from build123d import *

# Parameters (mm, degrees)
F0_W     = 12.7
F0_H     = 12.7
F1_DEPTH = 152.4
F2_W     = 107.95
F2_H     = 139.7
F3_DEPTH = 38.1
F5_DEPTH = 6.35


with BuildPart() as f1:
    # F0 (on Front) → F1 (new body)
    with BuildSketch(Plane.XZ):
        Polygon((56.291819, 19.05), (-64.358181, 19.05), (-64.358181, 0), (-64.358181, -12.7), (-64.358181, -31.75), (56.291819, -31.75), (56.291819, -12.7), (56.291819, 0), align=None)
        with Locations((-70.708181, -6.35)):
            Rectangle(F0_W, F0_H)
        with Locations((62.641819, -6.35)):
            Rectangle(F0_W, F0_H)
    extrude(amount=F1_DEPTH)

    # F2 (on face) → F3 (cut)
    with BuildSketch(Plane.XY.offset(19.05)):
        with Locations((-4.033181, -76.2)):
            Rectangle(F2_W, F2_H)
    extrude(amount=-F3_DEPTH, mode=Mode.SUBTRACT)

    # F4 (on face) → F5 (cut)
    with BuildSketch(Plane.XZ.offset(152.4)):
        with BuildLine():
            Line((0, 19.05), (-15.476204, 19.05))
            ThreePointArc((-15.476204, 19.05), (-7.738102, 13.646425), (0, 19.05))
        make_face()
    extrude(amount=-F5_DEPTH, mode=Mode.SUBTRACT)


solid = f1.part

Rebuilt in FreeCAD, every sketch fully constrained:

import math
import FreeCAD as App
import Part
import Sketcher

V = App.Vector
Q = App.Units.Quantity


def add_polygon(sketch, points):
    """Adds a closed chain of lines whose ends are joined by coincident constraints."""
    first, n = sketch.GeometryCount, len(points)
    for a, b in zip(points, points[1:] + points[:1]):
        sketch.addGeometry(Part.LineSegment(App.Vector(*a, 0), App.Vector(*b, 0)), False)
    for i in range(n):
        sketch.addConstraint(Sketcher.Constraint("Coincident", first + i, 2, first + (i + 1) % n, 1))

doc = App.newDocument("Part")
body = doc.addObject("PartDesign::Body", "Body")

# Sketch on XZ plane
sketch1 = body.newObject("Sketcher::SketchObject", "Sketch")
sketch1.AttachmentSupport = (doc.getObject("XZ_Plane"), [""])
sketch1.MapMode = "FlatFace"
add_polygon(sketch1, [(56, 19), (-64, 19), (-64, 0), (-77, 0), (-77, -13), (-64, -13), (-64, -32), (56, -32), (56, -13), (69, -13), (69, 0), (56, 0)])  # lines 0-11
sketch1.addConstraint([
    Sketcher.Constraint("Horizontal", 0),
    Sketcher.Constraint("Vertical", 1),
    Sketcher.Constraint("Horizontal", 2),
    Sketcher.Constraint("Vertical", 3),
    Sketcher.Constraint("Horizontal", 4),
    Sketcher.Constraint("Vertical", 5),
    Sketcher.Constraint("Horizontal", 6),
    Sketcher.Constraint("Vertical", 7),
    Sketcher.Constraint("Horizontal", 8),
    Sketcher.Constraint("Vertical", 9),
    Sketcher.Constraint("Horizontal", 10),
    Sketcher.Constraint("Vertical", 11),
    Sketcher.Constraint("PointOnObject", 1, 2, -1),
    Sketcher.Constraint("PointOnObject", 9, 2, -1),
    Sketcher.Constraint("Horizontal", 4, 2, 7, 2),
    Sketcher.Constraint("Vertical", 1, 2, 4, 2),
    Sketcher.Constraint("Vertical", 7, 2, 10, 2),
    Sketcher.Constraint("Equal", 4, 8),
    Sketcher.Constraint("Equal", 10, 3),
    Sketcher.Constraint("Equal", 1, 5),
    Sketcher.Constraint("DistanceX", 2, 2, 2, 1, Q("0.5 in")),
    Sketcher.Constraint("DistanceY", 5, 2, 0, 2, Q("2 in")),
    Sketcher.Constraint("DistanceX", 0, 2, 0, 1, Q("4.75 in")),
    Sketcher.Constraint("DistanceX", 0, 2, -1, 1, Q("64.358181 mm")),
])
pad1 = body.newObject("PartDesign::Pad", "Pad")
pad1.Profile = sketch1
pad1.Length = Q("6 in")

# Sketch on XY plane
sketch2 = body.newObject("Sketcher::SketchObject", "Sketch001")
sketch2.AttachmentSupport = (doc.getObject("XY_Plane"), [""])
sketch2.MapMode = "FlatFace"
sketch2.AttachmentOffset = App.Placement(V(0, 0, 0.75 * 25.4), App.Rotation())
add_polygon(sketch2, [(-58, -6), (-58, -146), (50, -146), (50, -6)])  # lines 0-3
sketch2.addConstraint([
    Sketcher.Constraint("Vertical", 0),
    Sketcher.Constraint("Horizontal", 1),
    Sketcher.Constraint("Vertical", 2),
    Sketcher.Constraint("Horizontal", 3),
    Sketcher.Constraint("DistanceY", 0, 2, 0, 1, Q("5.5 in")),
    Sketcher.Constraint("DistanceX", 1, 1, 1, 2, Q("4.25 in")),
    Sketcher.Constraint("DistanceY", 0, 2, -1, 1, Q("5.75 in")),
    Sketcher.Constraint("DistanceX", 0, 2, -1, 1, Q("58.008181 mm")),
])
pocket1 = body.newObject("PartDesign::Pocket", "Pocket")
pocket1.Profile = sketch2
pocket1.Length = Q("1.5 in")

# Sketch on XZ plane
sketch3 = body.newObject("Sketcher::SketchObject", "Sketch002")
sketch3.AttachmentSupport = (doc.getObject("XZ_Plane"), [""])
sketch3.MapMode = "FlatFace"
sketch3.AttachmentOffset = App.Placement(V(0, 0, 6 * 25.4), App.Rotation())
sketch3.addGeometry([
    Part.LineSegment(V(0, 19, 0), V(-15, 19, 0)),
    Part.ArcOfCircle(Part.Circle(V(-8, 22, 0), V(0, 0, 1), 8), math.radians(-160), math.radians(-20)),
], False)
sketch3.addConstraint([
    Sketcher.Constraint("Coincident", 0, 1, 1, 2),
    Sketcher.Constraint("Coincident", 1, 1, 0, 2),
    Sketcher.Constraint("Horizontal", 0),
    Sketcher.Constraint("PointOnObject", 0, 1, -2),
    Sketcher.Constraint("DistanceY", -1, 1, 0, 1, Q("0.75 in")),
    Sketcher.Constraint("Radius", 1, Q("8.242399 mm")),
    Sketcher.Constraint("DistanceX", 1, 3, -1, 1, Q("7.738102 mm")),
])
pocket2 = body.newObject("PartDesign::Pocket", "Pocket001")
pocket2.Profile = sketch3
pocket2.Length = Q("0.25 in")

doc.recompute()
